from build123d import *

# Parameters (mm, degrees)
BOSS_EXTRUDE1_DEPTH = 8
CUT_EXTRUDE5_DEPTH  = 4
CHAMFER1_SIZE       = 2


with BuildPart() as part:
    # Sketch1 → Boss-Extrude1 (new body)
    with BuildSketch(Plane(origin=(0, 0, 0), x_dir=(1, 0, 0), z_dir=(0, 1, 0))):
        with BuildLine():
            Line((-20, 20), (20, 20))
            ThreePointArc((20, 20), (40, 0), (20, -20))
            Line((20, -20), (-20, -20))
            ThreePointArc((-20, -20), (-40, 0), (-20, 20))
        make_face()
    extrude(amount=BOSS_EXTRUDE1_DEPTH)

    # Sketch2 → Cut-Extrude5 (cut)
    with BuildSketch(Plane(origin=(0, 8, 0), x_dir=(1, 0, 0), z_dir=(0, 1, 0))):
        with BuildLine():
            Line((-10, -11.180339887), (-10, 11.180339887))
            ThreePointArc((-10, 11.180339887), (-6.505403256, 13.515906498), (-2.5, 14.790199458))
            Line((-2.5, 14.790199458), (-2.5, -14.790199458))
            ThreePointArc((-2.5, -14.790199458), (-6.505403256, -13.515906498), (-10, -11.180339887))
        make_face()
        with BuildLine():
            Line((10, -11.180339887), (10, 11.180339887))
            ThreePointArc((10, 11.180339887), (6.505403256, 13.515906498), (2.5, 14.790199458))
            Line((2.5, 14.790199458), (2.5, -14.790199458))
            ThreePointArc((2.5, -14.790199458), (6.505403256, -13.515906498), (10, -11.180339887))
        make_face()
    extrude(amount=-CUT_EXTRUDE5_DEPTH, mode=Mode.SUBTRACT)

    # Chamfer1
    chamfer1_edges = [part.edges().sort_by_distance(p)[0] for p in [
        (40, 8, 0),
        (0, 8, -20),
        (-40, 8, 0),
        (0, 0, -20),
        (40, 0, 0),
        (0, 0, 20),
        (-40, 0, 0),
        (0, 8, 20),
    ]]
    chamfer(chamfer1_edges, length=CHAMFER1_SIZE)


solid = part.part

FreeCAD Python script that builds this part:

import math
import FreeCAD as App
import Part
import Sketcher

V = App.Vector
Q = App.Units.Quantity


def edges_at(feature, points):
    """Names of the edges that pass closest to the given points."""
    edges = feature.Shape.Edges
    near = lambda p: min(range(len(edges)), key=lambda i: edges[i].distToShape(Part.Vertex(*p))[0])
    return sorted({f"Edge{near(p) + 1}" for p in points})

doc = App.newDocument("Part")
body = doc.addObject("PartDesign::Body", "Body")

# Sketch on XZ plane
sketch1 = body.newObject("Sketcher::SketchObject", "Sketch")
sketch1.AttachmentSupport = (doc.getObject("XZ_Plane"), [""])
sketch1.MapMode = "FlatFace"
sketch1.addGeometry(Part.LineSegment(V(20, -20, 0), V(-20, -20, 0)), False)
sketch1.addGeometry(Part.ArcOfCircle(Part.Circle(V(-20, 0, 0), V(0, 0, 1), 20), math.radians(90), math.radians(270)), False)
sketch1.addGeometry(Part.LineSegment(V(-20, 20, 0), V(20, 20, 0)), False)
sketch1.addGeometry(Part.ArcOfCircle(Part.Circle(V(20, 0, 0), V(0, 0, 1), 20), math.radians(-90), math.radians(90)), False)
sketch1.addConstraint(Sketcher.Constraint("Tangent", 0, 2, 1, 2))
sketch1.addConstraint(Sketcher.Constraint("Tangent", 1, 1, 2, 1))
sketch1.addConstraint(Sketcher.Constraint("Tangent", 2, 2, 3, 2))
sketch1.addConstraint(Sketcher.Constraint("Tangent", 3, 1, 0, 1))
sketch1.addConstraint(Sketcher.Constraint("Horizontal", 0))
sketch1.addConstraint(Sketcher.Constraint("Horizontal", 2))
sketch1.addConstraint(Sketcher.Constraint("Symmetric", 1, 3, 3, 3, -1, 1))
sketch1.addConstraint(Sketcher.Constraint("Radius", 1, Q("20 mm")))
sketch1.addConstraint(Sketcher.Constraint("DistanceX", 0, 2, 0, 1, Q("40 mm")))
pad1 = body.newObject("PartDesign::Pad", "Pad")
pad1.Profile = sketch1
pad1.Length = 8
pad1.Reversed = True

# Sketch on XZ plane
sketch2 = body.newObject("Sketcher::SketchObject", "Sketch001")
sketch2.AttachmentSupport = (doc.getObject("XZ_Plane"), [""])
sketch2.MapMode = "FlatFace"
sketch2.AttachmentOffset = App.Placement(V(0, 0, -8), App.Rotation())
sketch2.addGeometry(Part.LineSegment(V(-10, -11.18034, 0), V(-10, 11.18034, 0)), False)
sketch2.addGeometry(Part.ArcOfCircle(Part.Circle(V(0, 0, 0), V(0, 0, 1), 15), math.radians(99.594068), math.radians(131.810315)), False)
sketch2.addGeometry(Part.LineSegment(V(-2.5, 14.790199, 0), V(-2.5, -14.790199, 0)), False)
sketch2.addGeometry(Part.ArcOfCircle(Part.Circle(V(0, 0, 0), V(0, 0, 1), 15), math.radians(-131.810315), math.radians(-99.594068)), False)
sketch2.addGeometry(Part.LineSegment(V(10, 11.18034, 0), V(10, -11.18034, 0)), False)
sketch2.addGeometry(Part.ArcOfCircle(Part.Circle(V(0, 0, 0), V(0, 0, 1), 15), math.radians(-80.405932), math.radians(-48.189685)), False)
sketch2.addGeometry(Part.LineSegment(V(2.5, -14.790199, 0), V(2.5, 14.790199, 0)), False)
sketch2.addGeometry(Part.ArcOfCircle(Part.Circle(V(0, 0, 0), V(0, 0, 1), 15), math.radians(48.189685), math.radians(80.405932)), False)
sketch2.addConstraint(Sketcher.Constraint("Coincident", 0, 2, 1, 2))
sketch2.addConstraint(Sketcher.Constraint("Coincident", 1, 1, 2, 1))
sketch2.addConstraint(Sketcher.Constraint("Coincident", 2, 2, 3, 2))
sketch2.addConstraint(Sketcher.Constraint("Coincident", 3, 1, 0, 1))
sketch2.addConstraint(Sketcher.Constraint("Coincident", 4, 2, 5, 2))
sketch2.addConstraint(Sketcher.Constraint("Coincident", 5, 1, 6, 1))
sketch2.addConstraint(Sketcher.Constraint("Coincident", 6, 2, 7, 2))
sketch2.addConstraint(Sketcher.Constraint("Coincident", 7, 1, 4, 1))
sketch2.addConstraint(Sketcher.Constraint("Vertical", 0))
sketch2.addConstraint(Sketcher.Constraint("Vertical", 2))
sketch2.addConstraint(Sketcher.Constraint("Vertical", 4))
sketch2.addConstraint(Sketcher.Constraint("Vertical", 6))
sketch2.addConstraint(Sketcher.Constraint("Coincident", 1, 3, -1, 1))
sketch2.addConstraint(Sketcher.Constraint("Coincident", 3, 3, -1, 1))
sketch2.addConstraint(Sketcher.Constraint("Coincident", 5, 3, -1, 1))
sketch2.addConstraint(Sketcher.Constraint("Coincident", 7, 3, -1, 1))
sketch2.addConstraint(Sketcher.Constraint("Equal", 1, 3))
sketch2.addConstraint(Sketcher.Constraint("Equal", 3, 5))
sketch2.addConstraint(Sketcher.Constraint("Equal", 5, 7))
sketch2.addConstraint(Sketcher.Constraint("Horizontal", 3, 1, 4, 2))
sketch2.addConstraint(Sketcher.Constraint("Horizontal", 2, 2, 5, 1))
sketch2.addConstraint(Sketcher.Constraint("Radius", 1, Q("15 mm")))
sketch2.addConstraint(Sketcher.Constraint("DistanceX", 0, 2, -1, 1, Q("10 mm")))
sketch2.addConstraint(Sketcher.Constraint("DistanceX", 2, 2, 5, 1, Q("5 mm")))
pocket1 = body.newObject("PartDesign::Pocket", "Pocket")
pocket1.Profile = sketch2
pocket1.Length = 4
pocket1.Reversed = True
doc.recompute()

chamfer = body.newObject("PartDesign::Chamfer", "Chamfer")
chamfer.Base = (pocket1, edges_at(pocket1, [
    (40, 8, 0),
    (0, 8, -20),
    (-40, 8, 0),
    (0, 0, -20),
    (40, 0, 0),
    (0, 0, 20),
    (-40, 0, 0),
    (0, 8, 20),
]))
chamfer.Size = 2

doc.recompute()
